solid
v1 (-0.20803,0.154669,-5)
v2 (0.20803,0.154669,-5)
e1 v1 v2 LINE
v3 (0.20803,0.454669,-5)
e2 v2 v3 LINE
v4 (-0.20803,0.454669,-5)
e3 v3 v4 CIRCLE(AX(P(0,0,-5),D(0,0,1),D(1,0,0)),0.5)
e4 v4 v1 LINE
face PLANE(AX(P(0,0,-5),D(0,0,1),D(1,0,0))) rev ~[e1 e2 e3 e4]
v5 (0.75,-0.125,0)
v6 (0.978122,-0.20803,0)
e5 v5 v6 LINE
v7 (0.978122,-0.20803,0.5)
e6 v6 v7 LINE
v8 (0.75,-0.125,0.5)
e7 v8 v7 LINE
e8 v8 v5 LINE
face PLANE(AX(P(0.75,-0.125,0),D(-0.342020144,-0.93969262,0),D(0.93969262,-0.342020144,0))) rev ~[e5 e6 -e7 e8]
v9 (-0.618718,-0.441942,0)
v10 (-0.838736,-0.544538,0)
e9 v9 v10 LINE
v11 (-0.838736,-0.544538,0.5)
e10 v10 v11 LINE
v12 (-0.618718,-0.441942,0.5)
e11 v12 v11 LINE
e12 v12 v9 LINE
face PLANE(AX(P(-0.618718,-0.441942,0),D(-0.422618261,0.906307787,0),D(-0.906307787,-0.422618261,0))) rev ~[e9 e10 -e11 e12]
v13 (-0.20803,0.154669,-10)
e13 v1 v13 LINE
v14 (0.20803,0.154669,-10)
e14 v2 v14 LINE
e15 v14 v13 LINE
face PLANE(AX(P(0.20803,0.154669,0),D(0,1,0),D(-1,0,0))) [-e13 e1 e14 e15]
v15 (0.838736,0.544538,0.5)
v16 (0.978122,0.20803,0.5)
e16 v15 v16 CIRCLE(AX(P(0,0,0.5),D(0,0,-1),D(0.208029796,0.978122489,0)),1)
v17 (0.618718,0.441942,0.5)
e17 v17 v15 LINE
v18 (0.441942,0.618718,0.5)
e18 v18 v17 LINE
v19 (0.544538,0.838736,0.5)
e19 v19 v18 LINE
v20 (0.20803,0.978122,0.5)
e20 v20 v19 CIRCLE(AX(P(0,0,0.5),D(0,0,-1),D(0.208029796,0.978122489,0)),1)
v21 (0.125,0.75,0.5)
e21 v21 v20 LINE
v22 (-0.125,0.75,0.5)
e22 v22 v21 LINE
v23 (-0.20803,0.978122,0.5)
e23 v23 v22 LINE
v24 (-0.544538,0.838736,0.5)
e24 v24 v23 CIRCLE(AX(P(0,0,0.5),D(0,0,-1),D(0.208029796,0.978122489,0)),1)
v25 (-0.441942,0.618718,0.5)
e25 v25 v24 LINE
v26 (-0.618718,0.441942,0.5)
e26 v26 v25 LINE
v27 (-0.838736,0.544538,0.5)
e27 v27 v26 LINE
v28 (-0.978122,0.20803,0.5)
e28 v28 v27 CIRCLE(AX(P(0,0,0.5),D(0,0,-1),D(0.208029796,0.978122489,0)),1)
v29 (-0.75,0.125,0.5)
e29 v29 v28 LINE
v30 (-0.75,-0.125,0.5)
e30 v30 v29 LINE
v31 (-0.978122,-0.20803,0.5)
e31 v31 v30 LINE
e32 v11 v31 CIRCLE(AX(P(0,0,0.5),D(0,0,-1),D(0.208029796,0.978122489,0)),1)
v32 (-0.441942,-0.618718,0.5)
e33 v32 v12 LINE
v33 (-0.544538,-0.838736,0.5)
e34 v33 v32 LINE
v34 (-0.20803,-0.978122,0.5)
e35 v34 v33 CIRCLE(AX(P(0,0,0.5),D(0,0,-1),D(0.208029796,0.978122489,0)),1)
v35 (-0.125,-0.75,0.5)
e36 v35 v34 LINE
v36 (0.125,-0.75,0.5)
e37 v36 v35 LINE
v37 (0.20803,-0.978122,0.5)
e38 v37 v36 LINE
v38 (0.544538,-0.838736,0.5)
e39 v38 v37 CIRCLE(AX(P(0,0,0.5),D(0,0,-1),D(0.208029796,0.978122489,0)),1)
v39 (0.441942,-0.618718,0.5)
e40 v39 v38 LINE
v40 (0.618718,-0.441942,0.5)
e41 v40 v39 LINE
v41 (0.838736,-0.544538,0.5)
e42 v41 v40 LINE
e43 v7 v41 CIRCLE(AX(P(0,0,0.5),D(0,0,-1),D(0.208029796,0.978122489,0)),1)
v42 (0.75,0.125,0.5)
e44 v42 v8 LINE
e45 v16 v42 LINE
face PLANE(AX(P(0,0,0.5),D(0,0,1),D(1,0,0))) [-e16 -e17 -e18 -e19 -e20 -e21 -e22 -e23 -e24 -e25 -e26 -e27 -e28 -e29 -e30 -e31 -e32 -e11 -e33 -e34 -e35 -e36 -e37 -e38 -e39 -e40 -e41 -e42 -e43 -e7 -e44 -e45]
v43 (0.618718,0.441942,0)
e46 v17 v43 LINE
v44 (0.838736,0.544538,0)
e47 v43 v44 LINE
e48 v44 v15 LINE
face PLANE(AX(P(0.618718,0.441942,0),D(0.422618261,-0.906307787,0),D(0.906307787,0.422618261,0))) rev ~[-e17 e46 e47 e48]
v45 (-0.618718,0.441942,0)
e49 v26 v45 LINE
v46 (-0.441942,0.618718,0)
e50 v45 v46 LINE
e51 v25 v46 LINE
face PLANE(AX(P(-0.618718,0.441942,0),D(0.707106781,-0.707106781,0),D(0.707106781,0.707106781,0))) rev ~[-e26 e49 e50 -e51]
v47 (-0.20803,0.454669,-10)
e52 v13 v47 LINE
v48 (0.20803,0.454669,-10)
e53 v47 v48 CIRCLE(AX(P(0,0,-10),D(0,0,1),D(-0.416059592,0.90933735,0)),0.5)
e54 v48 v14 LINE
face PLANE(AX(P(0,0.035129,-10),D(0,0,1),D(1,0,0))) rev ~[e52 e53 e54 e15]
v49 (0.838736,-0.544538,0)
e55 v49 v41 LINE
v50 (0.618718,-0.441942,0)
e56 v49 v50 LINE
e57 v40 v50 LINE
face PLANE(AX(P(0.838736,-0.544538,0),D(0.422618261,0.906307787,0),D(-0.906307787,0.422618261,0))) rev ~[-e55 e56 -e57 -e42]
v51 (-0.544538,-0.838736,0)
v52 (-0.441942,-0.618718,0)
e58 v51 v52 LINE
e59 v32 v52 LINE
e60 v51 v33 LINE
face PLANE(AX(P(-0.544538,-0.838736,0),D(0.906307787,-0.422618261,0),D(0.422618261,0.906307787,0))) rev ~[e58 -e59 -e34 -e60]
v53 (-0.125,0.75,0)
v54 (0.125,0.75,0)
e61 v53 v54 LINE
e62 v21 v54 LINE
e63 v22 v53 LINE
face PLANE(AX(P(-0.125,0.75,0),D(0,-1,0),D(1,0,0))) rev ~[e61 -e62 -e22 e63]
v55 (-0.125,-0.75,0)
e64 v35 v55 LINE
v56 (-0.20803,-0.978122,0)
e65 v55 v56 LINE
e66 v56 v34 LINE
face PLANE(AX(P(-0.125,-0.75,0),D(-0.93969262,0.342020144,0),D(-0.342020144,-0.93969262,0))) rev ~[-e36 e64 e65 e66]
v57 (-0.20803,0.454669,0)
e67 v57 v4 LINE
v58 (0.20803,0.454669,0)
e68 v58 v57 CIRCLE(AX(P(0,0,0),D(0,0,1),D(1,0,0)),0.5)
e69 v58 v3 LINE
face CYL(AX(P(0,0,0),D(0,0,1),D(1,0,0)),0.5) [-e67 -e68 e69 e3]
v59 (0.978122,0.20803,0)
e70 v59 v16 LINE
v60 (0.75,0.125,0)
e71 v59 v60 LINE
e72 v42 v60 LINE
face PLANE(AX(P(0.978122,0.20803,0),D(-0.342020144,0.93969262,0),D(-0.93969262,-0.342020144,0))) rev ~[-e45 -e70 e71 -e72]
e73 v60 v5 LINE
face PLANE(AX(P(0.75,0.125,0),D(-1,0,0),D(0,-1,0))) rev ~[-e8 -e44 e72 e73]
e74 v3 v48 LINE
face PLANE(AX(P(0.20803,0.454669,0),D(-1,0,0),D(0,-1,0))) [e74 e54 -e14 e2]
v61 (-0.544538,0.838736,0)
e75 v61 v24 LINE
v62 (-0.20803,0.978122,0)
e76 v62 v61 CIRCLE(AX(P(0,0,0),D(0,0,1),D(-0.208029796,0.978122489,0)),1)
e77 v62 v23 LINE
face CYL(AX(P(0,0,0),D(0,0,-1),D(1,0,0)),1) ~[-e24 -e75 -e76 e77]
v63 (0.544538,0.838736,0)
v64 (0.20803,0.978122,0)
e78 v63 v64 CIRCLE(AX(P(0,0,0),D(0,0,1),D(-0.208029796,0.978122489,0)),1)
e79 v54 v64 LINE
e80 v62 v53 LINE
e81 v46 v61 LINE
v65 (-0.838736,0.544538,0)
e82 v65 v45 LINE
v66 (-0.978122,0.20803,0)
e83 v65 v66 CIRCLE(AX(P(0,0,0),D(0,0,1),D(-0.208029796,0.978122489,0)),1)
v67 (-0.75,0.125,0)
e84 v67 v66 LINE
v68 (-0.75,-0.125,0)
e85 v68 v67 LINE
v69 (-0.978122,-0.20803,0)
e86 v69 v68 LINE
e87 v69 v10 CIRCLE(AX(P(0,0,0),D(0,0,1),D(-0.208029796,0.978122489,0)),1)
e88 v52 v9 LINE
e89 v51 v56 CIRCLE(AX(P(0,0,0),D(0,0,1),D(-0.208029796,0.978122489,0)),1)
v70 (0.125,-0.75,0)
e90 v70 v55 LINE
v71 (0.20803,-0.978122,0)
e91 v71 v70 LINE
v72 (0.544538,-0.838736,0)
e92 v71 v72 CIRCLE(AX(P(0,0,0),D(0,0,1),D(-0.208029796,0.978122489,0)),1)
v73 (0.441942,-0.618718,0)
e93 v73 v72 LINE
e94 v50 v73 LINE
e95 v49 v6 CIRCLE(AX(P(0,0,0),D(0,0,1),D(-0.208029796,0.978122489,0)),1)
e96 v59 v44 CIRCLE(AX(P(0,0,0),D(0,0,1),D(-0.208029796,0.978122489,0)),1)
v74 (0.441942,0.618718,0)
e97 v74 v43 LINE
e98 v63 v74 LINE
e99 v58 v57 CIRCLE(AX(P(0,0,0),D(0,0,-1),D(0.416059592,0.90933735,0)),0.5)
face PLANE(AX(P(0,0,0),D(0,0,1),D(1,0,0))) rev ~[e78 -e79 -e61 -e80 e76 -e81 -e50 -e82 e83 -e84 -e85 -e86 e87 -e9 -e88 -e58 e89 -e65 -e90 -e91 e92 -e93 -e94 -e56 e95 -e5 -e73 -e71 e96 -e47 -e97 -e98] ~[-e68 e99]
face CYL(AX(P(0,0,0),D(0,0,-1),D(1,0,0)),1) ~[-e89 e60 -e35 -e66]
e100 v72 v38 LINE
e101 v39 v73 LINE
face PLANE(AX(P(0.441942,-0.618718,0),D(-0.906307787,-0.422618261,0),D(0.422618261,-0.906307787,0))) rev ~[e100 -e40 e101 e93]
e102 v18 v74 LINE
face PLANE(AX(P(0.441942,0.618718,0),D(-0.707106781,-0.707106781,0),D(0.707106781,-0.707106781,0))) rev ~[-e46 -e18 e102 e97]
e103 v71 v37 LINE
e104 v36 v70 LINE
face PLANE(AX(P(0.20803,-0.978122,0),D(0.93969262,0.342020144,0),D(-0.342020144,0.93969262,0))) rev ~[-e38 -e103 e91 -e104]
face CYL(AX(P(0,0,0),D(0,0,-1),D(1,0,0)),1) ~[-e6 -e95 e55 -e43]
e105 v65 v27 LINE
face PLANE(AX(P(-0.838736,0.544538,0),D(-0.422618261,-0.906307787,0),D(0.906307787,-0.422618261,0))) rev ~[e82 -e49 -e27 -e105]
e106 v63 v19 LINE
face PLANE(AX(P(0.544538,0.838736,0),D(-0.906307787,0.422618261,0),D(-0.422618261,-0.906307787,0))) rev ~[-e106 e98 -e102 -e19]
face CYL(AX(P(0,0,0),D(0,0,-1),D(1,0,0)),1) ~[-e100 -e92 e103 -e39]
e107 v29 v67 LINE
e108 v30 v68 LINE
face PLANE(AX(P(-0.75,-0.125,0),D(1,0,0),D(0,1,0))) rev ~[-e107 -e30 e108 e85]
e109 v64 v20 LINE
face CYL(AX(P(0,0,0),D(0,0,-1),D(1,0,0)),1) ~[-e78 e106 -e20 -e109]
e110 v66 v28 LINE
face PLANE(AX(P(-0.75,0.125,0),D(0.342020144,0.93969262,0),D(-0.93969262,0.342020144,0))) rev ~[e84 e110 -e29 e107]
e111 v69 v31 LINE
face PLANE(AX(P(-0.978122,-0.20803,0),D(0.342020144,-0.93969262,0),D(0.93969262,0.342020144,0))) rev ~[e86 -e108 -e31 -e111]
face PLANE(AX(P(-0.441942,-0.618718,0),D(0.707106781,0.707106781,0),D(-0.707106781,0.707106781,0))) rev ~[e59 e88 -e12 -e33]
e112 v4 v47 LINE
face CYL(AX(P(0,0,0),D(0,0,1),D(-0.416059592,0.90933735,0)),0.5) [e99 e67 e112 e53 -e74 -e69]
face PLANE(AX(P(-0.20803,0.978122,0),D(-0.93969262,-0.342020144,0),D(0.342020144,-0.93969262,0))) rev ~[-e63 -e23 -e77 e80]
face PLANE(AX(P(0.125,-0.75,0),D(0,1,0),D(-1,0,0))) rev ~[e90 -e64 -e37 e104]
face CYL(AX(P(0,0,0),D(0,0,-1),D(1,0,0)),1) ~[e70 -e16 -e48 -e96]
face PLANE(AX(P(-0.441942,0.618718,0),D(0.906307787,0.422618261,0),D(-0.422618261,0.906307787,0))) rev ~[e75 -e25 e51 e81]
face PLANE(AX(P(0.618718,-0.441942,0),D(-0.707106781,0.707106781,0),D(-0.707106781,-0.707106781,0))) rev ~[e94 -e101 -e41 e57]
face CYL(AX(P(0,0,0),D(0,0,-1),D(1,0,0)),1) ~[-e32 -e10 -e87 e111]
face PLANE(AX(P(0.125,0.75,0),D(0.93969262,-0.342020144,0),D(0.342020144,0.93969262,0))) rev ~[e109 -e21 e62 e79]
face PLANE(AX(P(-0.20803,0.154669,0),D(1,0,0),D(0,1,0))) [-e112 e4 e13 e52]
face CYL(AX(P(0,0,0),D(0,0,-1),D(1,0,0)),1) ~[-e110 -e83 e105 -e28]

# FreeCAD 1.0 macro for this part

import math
import FreeCAD as App
import Part
import Sketcher

V = App.Vector
Q = App.Units.Quantity

doc = App.newDocument("Part")
body = doc.addObject("PartDesign::Body", "Body")

sketch1 = body.newObject("Sketcher::SketchObject", "Sketch")
sketch1.AttachmentSupport = (doc.getObject("XY_Plane"), [""])
sketch1.MapMode = "FlatFace"
sketch1.addGeometry(Part.Circle(V(0, 0, 0), V(0, 0, 1), 1), False)
sketch1.addConstraint([
    Sketcher.Constraint("Coincident", 0, 3, -1, 1),
    Sketcher.Constraint("Diameter", 0, 2.0),
])
pad1 = body.newObject("PartDesign::Pad", "Pad")
pad1.Profile = sketch1
pad1.Length = 0.5

sketch2 = body.newObject("Sketcher::SketchObject", "Sketch001")
sketch2.AttachmentSupport = (doc.getObject("XY_Plane"), [""])
sketch2.MapMode = "FlatFace"
sketch2.addGeometry([
    Part.LineSegment(V(0.12, 0.75, 0), V(0.21, 0.98, 0)),
    Part.ArcOfCircle(Part.Circle(V(0, 0, 0), V(0, 0, 1), 1), math.radians(78), math.radians(102)),
    Part.LineSegment(V(-0.21, 0.98, 0), V(-0.12, 0.75, 0)),
    Part.LineSegment(V(-0.12, 0.75, 0), V(0.12, 0.75, 0)),
], False)
sketch2.addConstraint([
    Sketcher.Constraint("Coincident", 0, 2, 1, 1),
    Sketcher.Constraint("Coincident", 1, 2, 2, 1),
    Sketcher.Constraint("Coincident", 2, 2, 3, 1),
    Sketcher.Constraint("Coincident", 3, 2, 0, 1),
    Sketcher.Constraint("Horizontal", 3),
    Sketcher.Constraint("Coincident", 1, 3, -1, 1),
    Sketcher.Constraint("Horizontal", 0, 2, 1, 2),
    Sketcher.Constraint("Equal", 0, 2),
    Sketcher.Constraint("Radius", 1, 1.0),
    Sketcher.Constraint("Angle", 0, Q("70 deg")),
    Sketcher.Constraint("DistanceX", 3, 1, 3, 2, 0.25),
    Sketcher.Constraint("DistanceY", -1, 1, 2, 2, 0.75),
])
pocket1 = body.newObject("PartDesign::Pocket", "Pocket")
pocket1.Profile = sketch2
pocket1.Length = 5
pocket1.Midplane = True
doc.recompute()

polarpattern = body.newObject("PartDesign::PolarPattern", "PolarPattern")
polarpattern.Originals = [pocket1]
polarpattern.Axis = (doc.getObject("Z_Axis"), [""])
polarpattern.Angle = 360
polarpattern.Occurrences = 8
body.Tip = polarpattern

sketch3 = body.newObject("Sketcher::SketchObject", "Sketch002")
sketch3.AttachmentSupport = (doc.getObject("XY_Plane"), [""])
sketch3.MapMode = "FlatFace"
sketch3.addGeometry([
    Part.LineSegment(V(0.21, 0.45, 0), V(0.21, 0.15, 0)),
    Part.LineSegment(V(0.21, 0.15, 0), V(-0.21, 0.15, 0)),
    Part.LineSegment(V(-0.21, 0.15, 0), V(-0.21, 0.45, 0)),
    Part.ArcOfCircle(Part.Circle(V(0, 0, 0), V(0, 0, 1), 0.5), math.radians(115), math.radians(425)),
], False)
sketch3.addConstraint([
    Sketcher.Constraint("Coincident", 0, 2, 1, 1),
    Sketcher.Constraint("Coincident", 1, 2, 2, 1),
    Sketcher.Constraint("Coincident", 2, 2, 3, 1),
    Sketcher.Constraint("Coincident", 3, 2, 0, 1),
    Sketcher.Constraint("Vertical", 0),
    Sketcher.Constraint("Horizontal", 1),
    Sketcher.Constraint("Vertical", 2),
    Sketcher.Constraint("Coincident", 3, 3, -1, 1),
    Sketcher.Constraint("Horizontal", 2, 2, 3, 2),
    Sketcher.Constraint("Radius", 3, 0.5),
    Sketcher.Constraint("DistanceY", 0, 2, 0, 1, 0.3),
    Sketcher.Constraint("DistanceX", 1, 2, 1, 1, 0.41606),
])
pad2 = body.newObject("PartDesign::Pad", "Pad001")
pad2.Profile = sketch3
pad2.Length = 10
pad2.Reversed = True

sketch4 = body.newObject("Sketcher::SketchObject", "Sketch003")
sketch4.AttachmentSupport = (doc.getObject("XY_Plane"), [""])
sketch4.MapMode = "FlatFace"
sketch4.addGeometry(Part.Circle(V(0, 0, 0), V(0, 0, 1), 0.5), False)
sketch4.addConstraint([
    Sketcher.Constraint("Coincident", 0, 3, -1, 1),
    Sketcher.Constraint("Diameter", 0, 1.0),
])
pad3 = body.newObject("PartDesign::Pad", "Pad002")
pad3.Profile = sketch4
pad3.Length = 5
pad3.Reversed = True

doc.recompute()
